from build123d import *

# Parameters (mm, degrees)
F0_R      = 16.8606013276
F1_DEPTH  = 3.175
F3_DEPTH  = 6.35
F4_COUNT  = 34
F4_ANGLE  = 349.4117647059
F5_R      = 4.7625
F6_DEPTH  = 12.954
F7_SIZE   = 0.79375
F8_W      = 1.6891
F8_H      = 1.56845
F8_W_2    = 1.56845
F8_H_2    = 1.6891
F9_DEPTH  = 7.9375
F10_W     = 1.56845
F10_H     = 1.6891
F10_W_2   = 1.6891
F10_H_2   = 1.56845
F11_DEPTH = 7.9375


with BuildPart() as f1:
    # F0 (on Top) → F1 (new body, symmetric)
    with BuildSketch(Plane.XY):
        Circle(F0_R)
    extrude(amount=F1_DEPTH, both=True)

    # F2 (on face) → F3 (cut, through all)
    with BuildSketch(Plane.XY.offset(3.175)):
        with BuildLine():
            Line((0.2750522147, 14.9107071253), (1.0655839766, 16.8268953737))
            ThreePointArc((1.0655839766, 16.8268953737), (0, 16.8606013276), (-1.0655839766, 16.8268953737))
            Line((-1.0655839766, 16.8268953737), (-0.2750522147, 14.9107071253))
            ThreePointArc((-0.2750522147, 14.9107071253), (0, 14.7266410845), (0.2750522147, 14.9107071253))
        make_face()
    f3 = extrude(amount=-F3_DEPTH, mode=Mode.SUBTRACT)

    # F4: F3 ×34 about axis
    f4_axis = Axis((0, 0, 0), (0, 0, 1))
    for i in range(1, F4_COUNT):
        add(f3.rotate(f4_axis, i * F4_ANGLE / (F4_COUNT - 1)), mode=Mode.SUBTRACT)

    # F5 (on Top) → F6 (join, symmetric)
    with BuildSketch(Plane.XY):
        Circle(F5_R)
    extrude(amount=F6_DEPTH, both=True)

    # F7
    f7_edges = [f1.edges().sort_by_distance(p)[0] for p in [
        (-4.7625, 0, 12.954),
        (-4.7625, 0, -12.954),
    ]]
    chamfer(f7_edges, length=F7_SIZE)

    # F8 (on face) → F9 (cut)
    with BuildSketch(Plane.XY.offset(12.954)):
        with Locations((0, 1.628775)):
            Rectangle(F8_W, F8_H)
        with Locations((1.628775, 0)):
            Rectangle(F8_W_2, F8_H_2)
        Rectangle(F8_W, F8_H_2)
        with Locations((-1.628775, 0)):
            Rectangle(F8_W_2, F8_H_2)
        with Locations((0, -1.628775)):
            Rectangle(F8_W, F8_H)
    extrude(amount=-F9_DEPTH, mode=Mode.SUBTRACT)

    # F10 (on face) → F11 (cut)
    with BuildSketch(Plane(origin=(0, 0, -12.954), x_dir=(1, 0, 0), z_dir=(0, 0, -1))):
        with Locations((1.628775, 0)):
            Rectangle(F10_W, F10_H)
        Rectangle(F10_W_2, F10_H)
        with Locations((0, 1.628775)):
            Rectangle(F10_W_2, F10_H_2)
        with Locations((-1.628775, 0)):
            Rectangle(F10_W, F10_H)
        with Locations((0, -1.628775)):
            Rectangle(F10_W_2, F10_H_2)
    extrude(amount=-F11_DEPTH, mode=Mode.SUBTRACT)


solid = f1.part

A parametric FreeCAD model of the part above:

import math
import FreeCAD as App
import Part
import Sketcher

V = App.Vector
Q = App.Units.Quantity


def edges_at(feature, points):
    """Names of the edges that pass closest to the given points."""
    edges = feature.Shape.Edges
    near = lambda p: min(range(len(edges)), key=lambda i: edges[i].distToShape(Part.Vertex(*p))[0])
    return sorted({f"Edge{near(p) + 1}" for p in points})


def add_polygon(sketch, points):
    """Adds a closed chain of lines whose ends are joined by coincident constraints."""
    first, n = sketch.GeometryCount, len(points)
    for a, b in zip(points, points[1:] + points[:1]):
        sketch.addGeometry(Part.LineSegment(App.Vector(*a, 0), App.Vector(*b, 0)), False)
    for i in range(n):
        sketch.addConstraint(Sketcher.Constraint("Coincident", first + i, 2, first + (i + 1) % n, 1))

doc = App.newDocument("Part")
body = doc.addObject("PartDesign::Body", "Body")

sketch1 = doc.addObject("Sketcher::SketchObject", "Sketch")
body.addObject(sketch1)
sketch1.AttachmentSupport = (doc.XY_Plane, [""])
sketch1.MapMode = "FlatFace"
sketch1.addGeometry(Part.Circle(V(0, 0, 0), V(0, 0, 1), 17), False)
sketch1.addConstraint(Sketcher.Constraint("Coincident", 0, 3, -1, 1))
sketch1.addConstraint(Sketcher.Constraint("Diameter", 0, Q("33.721203 mm")))
pad1 = doc.addObject("PartDesign::Pad", "Pad")
body.addObject(pad1)
pad1.Profile = sketch1
pad1.Length = Q("0.25 in")
pad1.Midplane = True

sketch2 = doc.addObject("Sketcher::SketchObject", "Sketch001")
body.addObject(sketch2)
sketch2.AttachmentSupport = (doc.XY_Plane, [""])
sketch2.MapMode = "FlatFace"
sketch2.AttachmentOffset = App.Placement(V(0, 0, 0.125 * 25.4), App.Rotation())
sketch2.addGeometry(Part.LineSegment(V(0.28, 14.91, 0), V(1.07, 16.83, 0)), False)
sketch2.addGeometry(Part.ArcOfCircle(Part.Circle(V(0, 0, 0), V(0, 0, 1), 16.86), math.radians(86.38), math.radians(93.62)), False)
sketch2.addGeometry(Part.LineSegment(V(-1.07, 16.83, 0), V(-0.28, 14.91, 0)), False)
sketch2.addGeometry(Part.ArcOfCircle(Part.Circle(V(0, 15.02, 0), V(0, 0, 1), 0.3), math.radians(-158), math.radians(-22)), False)
sketch2.addConstraint(Sketcher.Constraint("Coincident", 0, 2, 1, 1))
sketch2.addConstraint(Sketcher.Constraint("Coincident", 1, 2, 2, 1))
sketch2.addConstraint(Sketcher.Constraint("Tangent", 2, 2, 3, 1))
sketch2.addConstraint(Sketcher.Constraint("Tangent", 3, 2, 0, 1))
sketch2.addConstraint(Sketcher.Constraint("Coincident", 1, 3, -1, 1))
sketch2.addConstraint(Sketcher.Constraint("Symmetric", 2, 2, 3, 2, -2))
sketch2.addConstraint(Sketcher.Constraint("Radius", 1, Q("16.860601 mm")))
sketch2.addConstraint(Sketcher.Constraint("Radius", 3, Q("0.29754 mm")))
sketch2.addConstraint(Sketcher.Constraint("DistanceY", -1, 1, 3, 3, Q("15.024181 mm")))
sketch2.addConstraint(Sketcher.Constraint("DistanceX", 1, 2, 2, 2, Q("0.790532 mm")))
pocket1 = doc.addObject("PartDesign::Pocket", "Pocket")
body.addObject(pocket1)
pocket1.Profile = sketch2
pocket1.Type = "ThroughAll"
doc.recompute()

polarpattern = doc.addObject("PartDesign::PolarPattern", "PolarPattern")
body.addObject(polarpattern)
polarpattern.Originals = [pocket1]
polarpattern.Axis = (doc.Z_Axis, [""])
polarpattern.Angle = 360
polarpattern.Occurrences = 34
body.Tip = polarpattern

sketch3 = doc.addObject("Sketcher::SketchObject", "Sketch002")
body.addObject(sketch3)
sketch3.AttachmentSupport = (doc.XY_Plane, [""])
sketch3.MapMode = "FlatFace"
sketch3.addGeometry(Part.Circle(V(0, 0, 0), V(0, 0, 1), 4.8), False)
sketch3.addConstraint(Sketcher.Constraint("Coincident", 0, 3, -1, 1))
sketch3.addConstraint(Sketcher.Constraint("Diameter", 0, Q("0.375 in")))
pad2 = doc.addObject("PartDesign::Pad", "Pad001")
body.addObject(pad2)
pad2.Profile = sketch3
pad2.Length = Q("1.02 in")
pad2.Midplane = True
doc.recompute()

chamfer = doc.addObject("PartDesign::Chamfer", "Chamfer")
body.addObject(chamfer)
chamfer.Base = (pad2, edges_at(pad2, [(-4.763, 0, 12.954), (-4.763, 0, -12.954)]))
chamfer.Size = Q("0.03125 in")

sketch4 = doc.addObject("Sketcher::SketchObject", "Sketch003")
body.addObject(sketch4)
sketch4.AttachmentSupport = (doc.XY_Plane, [""])
sketch4.MapMode = "FlatFace"
sketch4.AttachmentOffset = App.Placement(V(0, 0, 0.51 * 25.4), App.Rotation())
add_polygon(sketch4, [(-0.8, 2.4), (-0.8, 0.8), (-2.4, 0.8), (-2.4, -0.8), (-0.8, -0.8), (-0.8, -2.4), (0.8, -2.4), (0.8, -0.8), (2.4, -0.8), (2.4, 0.8), (0.8, 0.8), (0.8, 2.4)])
sketch4.addConstraint(Sketcher.Constraint("Vertical", 0))
sketch4.addConstraint(Sketcher.Constraint("Horizontal", 1))
sketch4.addConstraint(Sketcher.Constraint("Vertical", 2))
sketch4.addConstraint(Sketcher.Constraint("Horizontal", 3))
sketch4.addConstraint(Sketcher.Constraint("Vertical", 4))
sketch4.addConstraint(Sketcher.Constraint("Horizontal", 5))
sketch4.addConstraint(Sketcher.Constraint("Vertical", 6))
sketch4.addConstraint(Sketcher.Constraint("Horizontal", 7))
sketch4.addConstraint(Sketcher.Constraint("Vertical", 8))
sketch4.addConstraint(Sketcher.Constraint("Horizontal", 9))
sketch4.addConstraint(Sketcher.Constraint("Vertical", 10))
sketch4.addConstraint(Sketcher.Constraint("Horizontal", 11))
sketch4.addConstraint(Sketcher.Constraint("Symmetric", 0, 2, 6, 2, -1, 1))
sketch4.addConstraint(Sketcher.Constraint("Symmetric", 2, 2, 8, 2, -1, 1))
sketch4.addConstraint(Sketcher.Constraint("Symmetric", 4, 2, 10, 2, -1, 1))
sketch4.addConstraint(Sketcher.Constraint("Symmetric", 3, 2, 6, 2, -2))
sketch4.addConstraint(Sketcher.Constraint("Equal", 9, 0))
sketch4.addConstraint(Sketcher.Constraint("Equal", 11, 2))
sketch4.addConstraint(Sketcher.Constraint("DistanceX", 5, 1, 5, 2, Q("0.0665 in")))
sketch4.addConstraint(Sketcher.Constraint("DistanceX", 1, 2, -1, 1, Q("0.095 in")))
pocket2 = doc.addObject("PartDesign::Pocket", "Pocket001")
body.addObject(pocket2)
pocket2.Profile = sketch4
pocket2.Length = Q("0.3125 in")

sketch5 = doc.addObject("Sketcher::SketchObject", "Sketch004")
body.addObject(sketch5)
sketch5.AttachmentSupport = (doc.XY_Plane, [""])
sketch5.MapMode = "FlatFace"
sketch5.AttachmentOffset = App.Placement(V(0, 0, -0.51 * 25.4), App.Rotation())
add_polygon(sketch5, [(2.4, 0.8), (2.4, -0.8), (0.8, -0.8), (0.8, -2.4), (-0.8, -2.4), (-0.8, -0.8), (-2.4, -0.8), (-2.4, 0.8), (-0.8, 0.8), (-0.8, 2.4), (0.8, 2.4), (0.8, 0.8)])
sketch5.addConstraint(Sketcher.Constraint("Vertical", 0))
sketch5.addConstraint(Sketcher.Constraint("Horizontal", 1))
sketch5.addConstraint(Sketcher.Constraint("Vertical", 2))
sketch5.addConstraint(Sketcher.Constraint("Horizontal", 3))
sketch5.addConstraint(Sketcher.Constraint("Vertical", 4))
sketch5.addConstraint(Sketcher.Constraint("Horizontal", 5))
sketch5.addConstraint(Sketcher.Constraint("Vertical", 6))
sketch5.addConstraint(Sketcher.Constraint("Horizontal", 7))
sketch5.addConstraint(Sketcher.Constraint("Vertical", 8))
sketch5.addConstraint(Sketcher.Constraint("Horizontal", 9))
sketch5.addConstraint(Sketcher.Constraint("Vertical", 10))
sketch5.addConstraint(Sketcher.Constraint("Horizontal", 11))
sketch5.addConstraint(Sketcher.Constraint("Symmetric", 0, 2, 6, 2, -1, 1))
sketch5.addConstraint(Sketcher.Constraint("Symmetric", 2, 2, 8, 2, -1, 1))
sketch5.addConstraint(Sketcher.Constraint("Symmetric", 4, 2, 10, 2, -1, 1))
sketch5.addConstraint(Sketcher.Constraint("Symmetric", 1, 2, 4, 2, -2))
sketch5.addConstraint(Sketcher.Constraint("Equal", 9, 0))
sketch5.addConstraint(Sketcher.Constraint("Equal", 11, 2))
sketch5.addConstraint(Sketcher.Constraint("DistanceX", 5, 2, 0, 2, Q("0.19 in")))
sketch5.addConstraint(Sketcher.Constraint("DistanceX", 3, 2, 3, 1, Q("0.0665 in")))
pocket3 = doc.addObject("PartDesign::Pocket", "Pocket002")
body.addObject(pocket3)
pocket3.Profile = sketch5
pocket3.Length = Q("0.3125 in")
pocket3.Reversed = True

doc.recompute()
